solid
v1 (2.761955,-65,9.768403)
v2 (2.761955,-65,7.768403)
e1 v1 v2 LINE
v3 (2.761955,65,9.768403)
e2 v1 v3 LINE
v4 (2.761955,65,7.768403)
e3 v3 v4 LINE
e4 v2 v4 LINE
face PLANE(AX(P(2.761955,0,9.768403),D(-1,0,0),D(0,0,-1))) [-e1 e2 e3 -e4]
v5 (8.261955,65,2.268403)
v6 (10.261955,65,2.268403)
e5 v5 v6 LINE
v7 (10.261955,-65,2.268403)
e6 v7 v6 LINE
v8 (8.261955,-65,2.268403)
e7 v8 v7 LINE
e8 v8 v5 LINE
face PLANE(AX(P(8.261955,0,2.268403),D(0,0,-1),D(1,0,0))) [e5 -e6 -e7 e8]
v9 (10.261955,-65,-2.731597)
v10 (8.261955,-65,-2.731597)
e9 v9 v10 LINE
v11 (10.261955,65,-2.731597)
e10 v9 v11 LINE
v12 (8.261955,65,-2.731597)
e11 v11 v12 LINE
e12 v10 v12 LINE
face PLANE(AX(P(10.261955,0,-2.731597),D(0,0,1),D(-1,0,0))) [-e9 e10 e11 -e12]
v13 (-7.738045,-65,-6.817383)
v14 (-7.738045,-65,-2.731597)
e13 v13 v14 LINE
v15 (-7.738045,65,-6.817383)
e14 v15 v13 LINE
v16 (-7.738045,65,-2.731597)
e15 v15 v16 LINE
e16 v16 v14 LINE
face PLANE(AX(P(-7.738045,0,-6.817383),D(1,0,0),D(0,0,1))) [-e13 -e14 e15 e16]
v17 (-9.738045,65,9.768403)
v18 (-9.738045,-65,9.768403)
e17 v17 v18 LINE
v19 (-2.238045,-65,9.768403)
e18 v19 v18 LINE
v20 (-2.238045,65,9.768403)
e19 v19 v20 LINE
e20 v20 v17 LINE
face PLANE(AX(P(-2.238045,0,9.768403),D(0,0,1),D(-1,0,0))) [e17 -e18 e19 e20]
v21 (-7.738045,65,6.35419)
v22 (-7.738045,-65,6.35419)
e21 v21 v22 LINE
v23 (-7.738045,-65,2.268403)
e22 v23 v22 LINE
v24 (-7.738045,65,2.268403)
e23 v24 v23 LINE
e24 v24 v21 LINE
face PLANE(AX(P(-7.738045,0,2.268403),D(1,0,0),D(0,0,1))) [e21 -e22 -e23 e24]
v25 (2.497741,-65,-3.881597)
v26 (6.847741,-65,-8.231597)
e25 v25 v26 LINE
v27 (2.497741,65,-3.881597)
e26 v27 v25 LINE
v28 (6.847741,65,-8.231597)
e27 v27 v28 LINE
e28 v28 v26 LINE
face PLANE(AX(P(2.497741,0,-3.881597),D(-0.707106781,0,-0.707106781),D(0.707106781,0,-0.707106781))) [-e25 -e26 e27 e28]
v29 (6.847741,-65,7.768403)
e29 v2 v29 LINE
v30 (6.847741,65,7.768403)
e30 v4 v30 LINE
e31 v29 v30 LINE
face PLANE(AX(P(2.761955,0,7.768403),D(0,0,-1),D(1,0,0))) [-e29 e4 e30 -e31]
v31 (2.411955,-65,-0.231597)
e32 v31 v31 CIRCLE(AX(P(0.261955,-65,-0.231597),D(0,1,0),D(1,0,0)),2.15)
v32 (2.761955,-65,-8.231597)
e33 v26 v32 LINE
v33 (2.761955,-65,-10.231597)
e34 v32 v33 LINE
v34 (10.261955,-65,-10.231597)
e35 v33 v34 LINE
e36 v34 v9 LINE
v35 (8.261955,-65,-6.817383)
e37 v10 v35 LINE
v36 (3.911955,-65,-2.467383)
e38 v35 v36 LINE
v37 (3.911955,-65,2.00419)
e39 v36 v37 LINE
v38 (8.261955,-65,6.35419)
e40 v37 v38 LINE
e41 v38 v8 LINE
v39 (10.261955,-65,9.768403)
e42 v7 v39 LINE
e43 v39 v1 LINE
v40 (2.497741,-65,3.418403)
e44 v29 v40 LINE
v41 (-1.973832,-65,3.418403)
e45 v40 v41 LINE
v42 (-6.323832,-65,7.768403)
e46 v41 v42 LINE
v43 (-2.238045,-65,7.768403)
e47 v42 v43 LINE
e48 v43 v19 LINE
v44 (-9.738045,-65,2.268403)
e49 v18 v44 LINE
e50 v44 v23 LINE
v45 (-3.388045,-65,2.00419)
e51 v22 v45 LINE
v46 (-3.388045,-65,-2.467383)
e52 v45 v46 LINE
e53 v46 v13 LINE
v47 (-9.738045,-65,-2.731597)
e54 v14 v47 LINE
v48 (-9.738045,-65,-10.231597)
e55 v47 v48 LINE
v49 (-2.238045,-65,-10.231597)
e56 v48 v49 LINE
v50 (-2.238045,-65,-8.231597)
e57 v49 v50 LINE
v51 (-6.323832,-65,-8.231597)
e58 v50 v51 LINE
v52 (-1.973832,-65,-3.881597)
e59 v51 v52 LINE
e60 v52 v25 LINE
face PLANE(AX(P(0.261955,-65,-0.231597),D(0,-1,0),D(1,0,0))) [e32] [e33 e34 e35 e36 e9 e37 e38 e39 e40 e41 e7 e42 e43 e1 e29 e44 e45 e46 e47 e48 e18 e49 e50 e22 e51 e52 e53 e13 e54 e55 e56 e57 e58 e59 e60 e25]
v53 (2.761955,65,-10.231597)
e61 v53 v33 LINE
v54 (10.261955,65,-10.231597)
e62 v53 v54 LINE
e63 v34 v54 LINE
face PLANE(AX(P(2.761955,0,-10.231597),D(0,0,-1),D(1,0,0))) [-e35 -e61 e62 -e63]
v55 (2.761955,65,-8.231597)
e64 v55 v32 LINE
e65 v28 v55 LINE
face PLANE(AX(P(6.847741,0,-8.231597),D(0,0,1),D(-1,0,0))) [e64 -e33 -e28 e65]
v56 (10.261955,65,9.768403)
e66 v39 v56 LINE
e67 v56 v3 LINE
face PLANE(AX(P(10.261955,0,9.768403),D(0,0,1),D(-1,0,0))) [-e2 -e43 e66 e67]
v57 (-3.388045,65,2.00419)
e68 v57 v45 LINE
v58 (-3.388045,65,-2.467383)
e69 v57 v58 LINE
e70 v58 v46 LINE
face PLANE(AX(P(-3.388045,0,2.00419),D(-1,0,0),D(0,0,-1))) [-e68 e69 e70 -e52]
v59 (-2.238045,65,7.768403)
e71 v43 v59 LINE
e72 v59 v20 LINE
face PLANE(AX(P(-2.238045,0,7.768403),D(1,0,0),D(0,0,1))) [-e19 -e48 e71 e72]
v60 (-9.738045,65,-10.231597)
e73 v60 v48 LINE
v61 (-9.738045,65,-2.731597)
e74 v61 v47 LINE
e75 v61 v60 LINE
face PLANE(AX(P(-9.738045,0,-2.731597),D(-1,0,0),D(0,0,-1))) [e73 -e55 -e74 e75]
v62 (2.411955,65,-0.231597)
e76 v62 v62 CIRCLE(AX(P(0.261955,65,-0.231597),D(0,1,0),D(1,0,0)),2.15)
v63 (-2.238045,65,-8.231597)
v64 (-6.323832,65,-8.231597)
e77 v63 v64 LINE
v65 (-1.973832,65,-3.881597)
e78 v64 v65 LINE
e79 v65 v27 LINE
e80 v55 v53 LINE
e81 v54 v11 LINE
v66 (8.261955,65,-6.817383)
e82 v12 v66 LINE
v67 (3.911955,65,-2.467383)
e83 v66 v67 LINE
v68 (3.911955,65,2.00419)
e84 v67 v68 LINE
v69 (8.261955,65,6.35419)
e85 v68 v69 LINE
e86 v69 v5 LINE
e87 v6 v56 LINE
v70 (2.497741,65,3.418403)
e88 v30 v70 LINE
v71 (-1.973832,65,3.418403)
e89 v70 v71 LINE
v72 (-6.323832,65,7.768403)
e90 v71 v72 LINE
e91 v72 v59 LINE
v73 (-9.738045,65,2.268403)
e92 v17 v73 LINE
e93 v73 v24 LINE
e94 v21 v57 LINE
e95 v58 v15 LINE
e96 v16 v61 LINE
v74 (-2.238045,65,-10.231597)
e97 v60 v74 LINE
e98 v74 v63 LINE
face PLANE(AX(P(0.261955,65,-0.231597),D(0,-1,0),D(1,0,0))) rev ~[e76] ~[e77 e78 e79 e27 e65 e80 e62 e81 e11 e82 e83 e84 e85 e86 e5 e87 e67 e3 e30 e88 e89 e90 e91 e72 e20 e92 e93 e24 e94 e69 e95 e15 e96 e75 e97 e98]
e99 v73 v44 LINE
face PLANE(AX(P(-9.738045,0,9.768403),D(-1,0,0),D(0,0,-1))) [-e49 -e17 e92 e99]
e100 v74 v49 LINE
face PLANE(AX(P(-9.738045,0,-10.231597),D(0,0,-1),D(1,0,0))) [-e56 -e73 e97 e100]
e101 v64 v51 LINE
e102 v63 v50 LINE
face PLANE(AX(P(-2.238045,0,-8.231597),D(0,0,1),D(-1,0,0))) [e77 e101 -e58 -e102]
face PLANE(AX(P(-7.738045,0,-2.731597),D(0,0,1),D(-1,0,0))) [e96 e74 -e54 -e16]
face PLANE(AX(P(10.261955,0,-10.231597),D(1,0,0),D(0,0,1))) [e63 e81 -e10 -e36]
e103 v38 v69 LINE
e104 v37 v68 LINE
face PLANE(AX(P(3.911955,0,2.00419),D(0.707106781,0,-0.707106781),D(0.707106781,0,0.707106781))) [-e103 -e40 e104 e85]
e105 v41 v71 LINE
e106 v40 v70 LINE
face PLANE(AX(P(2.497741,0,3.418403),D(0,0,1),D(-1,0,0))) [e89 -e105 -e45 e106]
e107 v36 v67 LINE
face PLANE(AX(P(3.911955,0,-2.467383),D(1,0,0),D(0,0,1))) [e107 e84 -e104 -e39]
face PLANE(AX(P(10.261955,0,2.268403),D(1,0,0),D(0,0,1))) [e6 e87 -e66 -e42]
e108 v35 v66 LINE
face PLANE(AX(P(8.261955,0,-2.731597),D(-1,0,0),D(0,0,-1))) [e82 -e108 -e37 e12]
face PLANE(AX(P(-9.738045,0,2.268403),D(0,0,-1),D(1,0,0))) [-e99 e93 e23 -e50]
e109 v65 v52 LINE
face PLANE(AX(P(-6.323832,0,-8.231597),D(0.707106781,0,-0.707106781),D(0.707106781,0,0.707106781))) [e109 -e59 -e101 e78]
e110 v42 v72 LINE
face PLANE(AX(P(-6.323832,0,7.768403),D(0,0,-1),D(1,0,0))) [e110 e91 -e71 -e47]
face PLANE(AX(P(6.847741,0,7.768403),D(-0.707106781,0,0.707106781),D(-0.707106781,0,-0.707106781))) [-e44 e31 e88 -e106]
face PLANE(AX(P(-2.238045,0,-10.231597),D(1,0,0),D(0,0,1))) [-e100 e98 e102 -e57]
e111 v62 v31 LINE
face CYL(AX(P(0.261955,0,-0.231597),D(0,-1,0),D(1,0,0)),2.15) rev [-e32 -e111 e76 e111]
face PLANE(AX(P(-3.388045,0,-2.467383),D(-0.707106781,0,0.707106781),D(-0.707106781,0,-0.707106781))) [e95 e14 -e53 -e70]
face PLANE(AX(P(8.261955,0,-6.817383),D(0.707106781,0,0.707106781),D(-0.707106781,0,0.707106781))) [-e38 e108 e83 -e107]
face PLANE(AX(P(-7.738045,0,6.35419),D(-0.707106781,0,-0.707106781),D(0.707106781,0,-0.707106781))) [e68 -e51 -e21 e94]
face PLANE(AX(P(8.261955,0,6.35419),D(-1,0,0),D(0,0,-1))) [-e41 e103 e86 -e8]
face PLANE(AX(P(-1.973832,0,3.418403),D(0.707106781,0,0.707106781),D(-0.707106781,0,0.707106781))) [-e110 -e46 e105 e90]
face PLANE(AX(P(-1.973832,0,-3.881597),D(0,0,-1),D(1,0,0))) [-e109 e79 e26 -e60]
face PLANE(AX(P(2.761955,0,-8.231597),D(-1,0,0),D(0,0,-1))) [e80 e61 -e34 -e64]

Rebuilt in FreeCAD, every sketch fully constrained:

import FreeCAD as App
import Part
import Sketcher
from FreeCAD import Vector

doc = App.newDocument("Part")
body = doc.addObject("PartDesign::Body", "Body")

# Sketch on XZ plane
sketch1 = body.newObject("Sketcher::SketchObject", "Sketch")
sketch1.AttachmentSupport = (doc.getObject("XZ_Plane"), [""])
sketch1.MapMode = "FlatFace"
sketch1.addGeometry([
    Part.LineSegment(Vector(-2.238045, 9.768403, 0), Vector(-9.738045, 9.768403, 0)),  # 0
    Part.LineSegment(Vector(-9.738045, 9.768403, 0), Vector(-9.738045, 2.268403, 0)),  # 1
    Part.LineSegment(Vector(-9.738045, 2.268403, 0), Vector(-7.738045, 2.268403, 0)),  # 2
    Part.LineSegment(Vector(-7.738045, 2.268403, 0), Vector(-7.738045, 6.35419, 0)),  # 3
    Part.LineSegment(Vector(-7.738045, 6.35419, 0), Vector(-3.388045, 2.00419, 0)),  # 4
    Part.LineSegment(Vector(-3.388045, 2.00419, 0), Vector(-3.388045, -2.467383, 0)),  # 5
    Part.LineSegment(Vector(-3.388045, -2.467383, 0), Vector(-7.738045, -6.817383, 0)),  # 6
    Part.LineSegment(Vector(-7.738045, -6.817383, 0), Vector(-7.738045, -2.731597, 0)),  # 7
    Part.LineSegment(Vector(-7.738045, -2.731597, 0), Vector(-9.738045, -2.731597, 0)),  # 8
    Part.LineSegment(Vector(-9.738045, -2.731597, 0), Vector(-9.738045, -10.231597, 0)),  # 9
    Part.LineSegment(Vector(-9.738045, -10.231597, 0), Vector(-2.238045, -10.231597, 0)),  # 10
    Part.LineSegment(Vector(-2.238045, -10.231597, 0), Vector(-2.238045, -8.231597, 0)),  # 11
    Part.LineSegment(Vector(-2.238045, -8.231597, 0), Vector(-6.323832, -8.231597, 0)),  # 12
    Part.LineSegment(Vector(-6.323832, -8.231597, 0), Vector(-1.973832, -3.881597, 0)),  # 13
    Part.LineSegment(Vector(-1.973832, -3.881597, 0), Vector(2.497741, -3.881597, 0)),  # 14
    Part.LineSegment(Vector(2.497741, -3.881597, 0), Vector(6.847741, -8.231597, 0)),  # 15
    Part.LineSegment(Vector(6.847741, -8.231597, 0), Vector(2.761955, -8.231597, 0)),  # 16
    Part.LineSegment(Vector(2.761955, -8.231597, 0), Vector(2.761955, -10.231597, 0)),  # 17
    Part.LineSegment(Vector(2.761955, -10.231597, 0), Vector(10.261955, -10.231597, 0)),  # 18
    Part.LineSegment(Vector(10.261955, -10.231597, 0), Vector(10.261955, -2.731597, 0)),  # 19
    Part.LineSegment(Vector(10.261955, -2.731597, 0), Vector(8.261955, -2.731597, 0)),  # 20
    Part.LineSegment(Vector(8.261955, -2.731597, 0), Vector(8.261955, -6.817383, 0)),  # 21
    Part.LineSegment(Vector(8.261955, -6.817383, 0), Vector(3.911955, -2.467383, 0)),  # 22
    Part.LineSegment(Vector(3.911955, -2.467383, 0), Vector(3.911955, 2.00419, 0)),  # 23
    Part.LineSegment(Vector(3.911955, 2.00419, 0), Vector(8.261955, 6.35419, 0)),  # 24
    Part.LineSegment(Vector(8.261955, 6.35419, 0), Vector(8.261955, 2.268403, 0)),  # 25
    Part.LineSegment(Vector(8.261955, 2.268403, 0), Vector(10.261955, 2.268403, 0)),  # 26
    Part.LineSegment(Vector(10.261955, 2.268403, 0), Vector(10.261955, 9.768403, 0)),  # 27
    Part.LineSegment(Vector(10.261955, 9.768403, 0), Vector(2.761955, 9.768403, 0)),  # 28
    Part.LineSegment(Vector(2.761955, 9.768403, 0), Vector(2.761955, 7.768403, 0)),  # 29
    Part.LineSegment(Vector(2.761955, 7.768403, 0), Vector(6.847741, 7.768403, 0)),  # 30
    Part.LineSegment(Vector(6.847741, 7.768403, 0), Vector(2.497741, 3.418403, 0)),  # 31
    Part.LineSegment(Vector(2.497741, 3.418403, 0), Vector(-1.973832, 3.418403, 0)),  # 32
    Part.LineSegment(Vector(-1.973832, 3.418403, 0), Vector(-6.323832, 7.768403, 0)),  # 33
    Part.LineSegment(Vector(-6.323832, 7.768403, 0), Vector(-2.238045, 7.768403, 0)),  # 34
    Part.LineSegment(Vector(-2.238045, 7.768403, 0), Vector(-2.238045, 9.768403, 0)),  # 35
    Part.Circle(Vector(0.261955, -0.231597, 0), Vector(0, 0, 1), 2.15),  # 36
], False)
sketch1.addConstraint([
    Sketcher.Constraint("Coincident", 0, 2, 1, 1),
    Sketcher.Constraint("Coincident", 1, 2, 2, 1),
    Sketcher.Constraint("Coincident", 2, 2, 3, 1),
    Sketcher.Constraint("Coincident", 3, 2, 4, 1),
    Sketcher.Constraint("Coincident", 4, 2, 5, 1),
    Sketcher.Constraint("Coincident", 5, 2, 6, 1),
    Sketcher.Constraint("Coincident", 6, 2, 7, 1),
    Sketcher.Constraint("Coincident", 7, 2, 8, 1),
    Sketcher.Constraint("Coincident", 8, 2, 9, 1),
    Sketcher.Constraint("Coincident", 9, 2, 10, 1),
    Sketcher.Constraint("Coincident", 10, 2, 11, 1),
    Sketcher.Constraint("Coincident", 11, 2, 12, 1),
    Sketcher.Constraint("Coincident", 12, 2, 13, 1),
    Sketcher.Constraint("Coincident", 13, 2, 14, 1),
    Sketcher.Constraint("Coincident", 14, 2, 15, 1),
    Sketcher.Constraint("Coincident", 15, 2, 16, 1),
    Sketcher.Constraint("Coincident", 16, 2, 17, 1),
    Sketcher.Constraint("Coincident", 17, 2, 18, 1),
    Sketcher.Constraint("Coincident", 18, 2, 19, 1),
    Sketcher.Constraint("Coincident", 19, 2, 20, 1),
    Sketcher.Constraint("Coincident", 20, 2, 21, 1),
    Sketcher.Constraint("Coincident", 21, 2, 22, 1),
    Sketcher.Constraint("Coincident", 22, 2, 23, 1),
    Sketcher.Constraint("Coincident", 23, 2, 24, 1),
    Sketcher.Constraint("Coincident", 24, 2, 25, 1),
    Sketcher.Constraint("Coincident", 25, 2, 26, 1),
    Sketcher.Constraint("Coincident", 26, 2, 27, 1),
    Sketcher.Constraint("Coincident", 27, 2, 28, 1),
    Sketcher.Constraint("Coincident", 28, 2, 29, 1),
    Sketcher.Constraint("Coincident", 29, 2, 30, 1),
    Sketcher.Constraint("Coincident", 30, 2, 31, 1),
    Sketcher.Constraint("Coincident", 31, 2, 32, 1),
    Sketcher.Constraint("Coincident", 32, 2, 33, 1),
    Sketcher.Constraint("Coincident", 33, 2, 34, 1),
    Sketcher.Constraint("Coincident", 34, 2, 35, 1),
    Sketcher.Constraint("Coincident", 35, 2, 0, 1),
    Sketcher.Constraint("Horizontal", 0),
    Sketcher.Constraint("Vertical", 1),
    Sketcher.Constraint("Horizontal", 2),
    Sketcher.Constraint("Vertical", 3),
    Sketcher.Constraint("Vertical", 5),
    Sketcher.Constraint("Vertical", 7),
    Sketcher.Constraint("Horizontal", 8),
    Sketcher.Constraint("Vertical", 9),
    Sketcher.Constraint("Horizontal", 10),
    Sketcher.Constraint("Vertical", 11),
    Sketcher.Constraint("Horizontal", 12),
    Sketcher.Constraint("Horizontal", 14),
    Sketcher.Constraint("Horizontal", 16),
    Sketcher.Constraint("Vertical", 17),
    Sketcher.Constraint("Horizontal", 18),
    Sketcher.Constraint("Vertical", 19),
    Sketcher.Constraint("Horizontal", 20),
    Sketcher.Constraint("Vertical", 21),
    Sketcher.Constraint("Vertical", 23),
    Sketcher.Constraint("Vertical", 25),
    Sketcher.Constraint("Horizontal", 26),
    Sketcher.Constraint("Vertical", 27),
    Sketcher.Constraint("Horizontal", 28),
    Sketcher.Constraint("Vertical", 29),
    Sketcher.Constraint("Horizontal", 30),
    Sketcher.Constraint("Horizontal", 32),
    Sketcher.Constraint("Horizontal", 34),
    Sketcher.Constraint("Vertical", 35),
    Sketcher.Constraint("Perpendicular", 4, 6),
    Sketcher.Constraint("Parallel", 6, 13),
    Sketcher.Constraint("Perpendicular", 13, 15),
    Sketcher.Constraint("Parallel", 15, 22),
    Sketcher.Constraint("Perpendicular", 22, 24),
    Sketcher.Constraint("Parallel", 24, 31),
    Sketcher.Constraint("Perpendicular", 31, 33),
    Sketcher.Constraint("Horizontal", 12, 2, 15, 2),
    Sketcher.Constraint("Horizontal", 10, 2, 17, 2),
    Sketcher.Constraint("Horizontal", 8, 2, 19, 2),
    Sketcher.Constraint("Horizontal", 6, 2, 21, 2),
    Sketcher.Constraint("Horizontal", 5, 2, 22, 2),
    Sketcher.Constraint("Horizontal", 4, 2, 23, 2),
    Sketcher.Constraint("Horizontal", 3, 2, 24, 2),
    Sketcher.Constraint("Horizontal", 2, 2, 25, 2),
    Sketcher.Constraint("Horizontal", 0, 2, 27, 2),
    Sketcher.Constraint("Horizontal", 30, 2, 33, 2),
    Sketcher.Constraint("Vertical", 3, 2, 6, 2),
    Sketcher.Constraint("Vertical", 1, 2, 8, 2),
    Sketcher.Constraint("Vertical", 21, 2, 24, 2),
    Sketcher.Constraint("Vertical", 19, 2, 26, 2),
    Sketcher.Constraint("Vertical", 17, 2, 28, 2),
    Sketcher.Constraint("Vertical", 15, 2, 30, 2),
    Sketcher.Constraint("Vertical", 14, 2, 31, 2),
    Sketcher.Constraint("Vertical", 13, 2, 32, 2),
    Sketcher.Constraint("Vertical", 11, 2, 34, 2),
    Sketcher.Constraint("Equal", 12, 16),
    Sketcher.Constraint("Equal", 10, 18),
    Sketcher.Constraint("Equal", 8, 20),
    Sketcher.Constraint("Equal", 28, 1),
    Sketcher.Constraint("Equal", 34, 3),
    Sketcher.Constraint("Equal", 32, 5),
    Sketcher.Constraint("Equal", 3, 7),
    Sketcher.Constraint("Equal", 1, 9),
    Sketcher.Constraint("Equal", 26, 11),
    Sketcher.Constraint("Equal", 17, 29),
    Sketcher.Constraint("Equal", 6, 13),
    Sketcher.Constraint("Diameter", 36, 4.3),
    Sketcher.Constraint("DistanceX", 2, 1, 2, 2, 2.0),
    Sketcher.Constraint("DistanceX", 0, 2, 0, 1, 7.5),
    Sketcher.Constraint("DistanceX", 0, 2, 36, 3, 10.0),
    Sketcher.Constraint("DistanceY", 36, 3, 0, 2, 10.0),
    Sketcher.Constraint("DistanceY", 7, 2, 2, 2, 5.0),
    Sketcher.Constraint("DistanceX", 4, 2, 23, 2, 7.3),
    Sketcher.Constraint("DistanceX", 12, 2, 12, 1, 4.085787),
    Sketcher.Constraint("DistanceY", -1, 1, 3, 2, 6.35419),
    Sketcher.Constraint("DistanceX", -1, 1, 14, 2, 2.497741),
])
pad1 = body.newObject("PartDesign::Pad", "Pad")
pad1.Profile = sketch1
pad1.Type = "TwoLengths"
pad1.Length = 65
pad1.Length2 = 65

doc.recompute()
